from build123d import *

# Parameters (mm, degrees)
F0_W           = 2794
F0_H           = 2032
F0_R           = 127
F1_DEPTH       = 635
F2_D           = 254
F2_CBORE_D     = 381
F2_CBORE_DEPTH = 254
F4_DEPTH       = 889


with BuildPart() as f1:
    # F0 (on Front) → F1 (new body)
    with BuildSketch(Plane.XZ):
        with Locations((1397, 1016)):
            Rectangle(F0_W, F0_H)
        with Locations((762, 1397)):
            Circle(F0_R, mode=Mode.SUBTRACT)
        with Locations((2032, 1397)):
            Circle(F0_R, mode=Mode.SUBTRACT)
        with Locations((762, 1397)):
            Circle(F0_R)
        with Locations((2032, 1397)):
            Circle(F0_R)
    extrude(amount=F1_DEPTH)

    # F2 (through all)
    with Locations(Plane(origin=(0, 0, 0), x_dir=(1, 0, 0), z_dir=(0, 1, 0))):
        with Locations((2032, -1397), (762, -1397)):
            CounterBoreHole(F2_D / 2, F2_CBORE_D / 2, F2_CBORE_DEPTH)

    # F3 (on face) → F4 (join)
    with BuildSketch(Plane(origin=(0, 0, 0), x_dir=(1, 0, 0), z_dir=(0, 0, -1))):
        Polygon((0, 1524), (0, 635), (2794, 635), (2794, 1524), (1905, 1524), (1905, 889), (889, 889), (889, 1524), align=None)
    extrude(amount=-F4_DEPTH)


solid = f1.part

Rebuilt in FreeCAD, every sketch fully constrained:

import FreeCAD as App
import Part
import Sketcher
from FreeCAD import Vector
Q = App.Units.Quantity

doc = App.newDocument("Part")
body = doc.addObject("PartDesign::Body", "Body")

# Sketch on XZ plane
sketch1 = doc.addObject("Sketcher::SketchObject", "Sketch")
body.addObject(sketch1)
sketch1.AttachmentSupport = (doc.XZ_Plane, [""])
sketch1.MapMode = "FlatFace"
sketch1.addGeometry([
    Part.LineSegment(Vector(0, 2032, 0), Vector(0, 0, 0)),
    Part.LineSegment(Vector(0, 0, 0), Vector(2794, 0, 0)),
    Part.LineSegment(Vector(2794, 0, 0), Vector(2794, 2032, 0)),
    Part.LineSegment(Vector(2794, 2032, 0), Vector(0, 2032, 0)),
], False)
sketch1.addConstraint([
    Sketcher.Constraint("Coincident", 0, 2, 1, 1),
    Sketcher.Constraint("Coincident", 1, 2, 2, 1),
    Sketcher.Constraint("Coincident", 2, 2, 3, 1),
    Sketcher.Constraint("Coincident", 3, 2, 0, 1),
    Sketcher.Constraint("Vertical", 0),
    Sketcher.Constraint("Horizontal", 1),
    Sketcher.Constraint("Vertical", 2),
    Sketcher.Constraint("Horizontal", 3),
    Sketcher.Constraint("Coincident", 0, 2, -1, 1),
    Sketcher.Constraint("DistanceX", 1, 1, 1, 2, Q("110 in")),
    Sketcher.Constraint("DistanceY", 0, 2, 0, 1, Q("80 in")),
])
pad1 = doc.addObject("PartDesign::Pad", "Pad")
body.addObject(pad1)
pad1.Profile = sketch1
pad1.Length = Q("25 in")

# Sketch on XZ plane
sketch2 = doc.addObject("Sketcher::SketchObject", "Sketch001")
body.addObject(sketch2)
sketch2.AttachmentSupport = (doc.XZ_Plane, [""])
sketch2.MapMode = "FlatFace"
sketch2.addGeometry([
    Part.Circle(Vector(2032, 1397, 0), Vector(0, 0, 1), 127),
    Part.Circle(Vector(762, 1397, 0), Vector(0, 0, 1), 127),
], False)
sketch2.addConstraint([
    Sketcher.Constraint("Equal", 0, 1),
    Sketcher.Constraint("Horizontal", 0, 3, 1, 3),
    Sketcher.Constraint("Diameter", 0, Q("10 in")),
    Sketcher.Constraint("DistanceX", -1, 1, 0, 3, Q("80 in")),
    Sketcher.Constraint("DistanceY", -1, 1, 0, 3, Q("55 in")),
    Sketcher.Constraint("DistanceX", -1, 1, 1, 3, Q("30 in")),
])
doc.recompute()
hole = doc.addObject("PartDesign::Hole", "Hole")
body.addObject(hole)
hole.Profile = sketch2
hole.ThreadType = "None"
hole.Diameter = Q("10 in")
hole.DepthType = "ThroughAll"
hole.HoleCutType = "Counterbore"
hole.HoleCutDiameter = Q("15 in")
hole.HoleCutDepth = Q("10 in")
hole.Reversed = True

# Sketch on XY plane
sketch3 = doc.addObject("Sketcher::SketchObject", "Sketch002")
body.addObject(sketch3)
sketch3.AttachmentSupport = (doc.XY_Plane, [""])
sketch3.MapMode = "FlatFace"
sketch3.addGeometry([
    Part.LineSegment(Vector(0, -1524, 0), Vector(0, -635, 0)),  # 0
    Part.LineSegment(Vector(0, -635, 0), Vector(2794, -635, 0)),  # 1
    Part.LineSegment(Vector(2794, -635, 0), Vector(2794, -1524, 0)),  # 2
    Part.LineSegment(Vector(2794, -1524, 0), Vector(1905, -1524, 0)),  # 3
    Part.LineSegment(Vector(1905, -1524, 0), Vector(1905, -889, 0)),  # 4
    Part.LineSegment(Vector(1905, -889, 0), Vector(889, -889, 0)),  # 5
    Part.LineSegment(Vector(889, -889, 0), Vector(889, -1524, 0)),  # 6
    Part.LineSegment(Vector(889, -1524, 0), Vector(0, -1524, 0)),  # 7
], False)
sketch3.addConstraint([
    Sketcher.Constraint("Coincident", 0, 2, 1, 1),
    Sketcher.Constraint("Coincident", 1, 2, 2, 1),
    Sketcher.Constraint("Coincident", 2, 2, 3, 1),
    Sketcher.Constraint("Coincident", 3, 2, 4, 1),
    Sketcher.Constraint("Coincident", 4, 2, 5, 1),
    Sketcher.Constraint("Coincident", 5, 2, 6, 1),
    Sketcher.Constraint("Coincident", 6, 2, 7, 1),
    Sketcher.Constraint("Coincident", 7, 2, 0, 1),
    Sketcher.Constraint("Vertical", 0),
    Sketcher.Constraint("Horizontal", 1),
    Sketcher.Constraint("Vertical", 2),
    Sketcher.Constraint("Horizontal", 3),
    Sketcher.Constraint("Vertical", 4),
    Sketcher.Constraint("Horizontal", 5),
    Sketcher.Constraint("Vertical", 6),
    Sketcher.Constraint("Horizontal", 7),
    Sketcher.Constraint("PointOnObject", 0, 2, -2),
    Sketcher.Constraint("Horizontal", 3, 2, 6, 2),
    Sketcher.Constraint("Equal", 3, 7),
    Sketcher.Constraint("Equal", 7, 0),
    Sketcher.Constraint("DistanceX", 1, 1, 1, 2, Q("110 in")),
    Sketcher.Constraint("DistanceX", 3, 2, 3, 1, Q("35 in")),
    Sketcher.Constraint("DistanceY", 4, 1, 4, 2, Q("25 in")),
    Sketcher.Constraint("DistanceY", 0, 2, -1, 1, Q("25 in")),
])
pad2 = doc.addObject("PartDesign::Pad", "Pad001")
body.addObject(pad2)
pad2.Profile = sketch3
pad2.Length = Q("35 in")

doc.recompute()
